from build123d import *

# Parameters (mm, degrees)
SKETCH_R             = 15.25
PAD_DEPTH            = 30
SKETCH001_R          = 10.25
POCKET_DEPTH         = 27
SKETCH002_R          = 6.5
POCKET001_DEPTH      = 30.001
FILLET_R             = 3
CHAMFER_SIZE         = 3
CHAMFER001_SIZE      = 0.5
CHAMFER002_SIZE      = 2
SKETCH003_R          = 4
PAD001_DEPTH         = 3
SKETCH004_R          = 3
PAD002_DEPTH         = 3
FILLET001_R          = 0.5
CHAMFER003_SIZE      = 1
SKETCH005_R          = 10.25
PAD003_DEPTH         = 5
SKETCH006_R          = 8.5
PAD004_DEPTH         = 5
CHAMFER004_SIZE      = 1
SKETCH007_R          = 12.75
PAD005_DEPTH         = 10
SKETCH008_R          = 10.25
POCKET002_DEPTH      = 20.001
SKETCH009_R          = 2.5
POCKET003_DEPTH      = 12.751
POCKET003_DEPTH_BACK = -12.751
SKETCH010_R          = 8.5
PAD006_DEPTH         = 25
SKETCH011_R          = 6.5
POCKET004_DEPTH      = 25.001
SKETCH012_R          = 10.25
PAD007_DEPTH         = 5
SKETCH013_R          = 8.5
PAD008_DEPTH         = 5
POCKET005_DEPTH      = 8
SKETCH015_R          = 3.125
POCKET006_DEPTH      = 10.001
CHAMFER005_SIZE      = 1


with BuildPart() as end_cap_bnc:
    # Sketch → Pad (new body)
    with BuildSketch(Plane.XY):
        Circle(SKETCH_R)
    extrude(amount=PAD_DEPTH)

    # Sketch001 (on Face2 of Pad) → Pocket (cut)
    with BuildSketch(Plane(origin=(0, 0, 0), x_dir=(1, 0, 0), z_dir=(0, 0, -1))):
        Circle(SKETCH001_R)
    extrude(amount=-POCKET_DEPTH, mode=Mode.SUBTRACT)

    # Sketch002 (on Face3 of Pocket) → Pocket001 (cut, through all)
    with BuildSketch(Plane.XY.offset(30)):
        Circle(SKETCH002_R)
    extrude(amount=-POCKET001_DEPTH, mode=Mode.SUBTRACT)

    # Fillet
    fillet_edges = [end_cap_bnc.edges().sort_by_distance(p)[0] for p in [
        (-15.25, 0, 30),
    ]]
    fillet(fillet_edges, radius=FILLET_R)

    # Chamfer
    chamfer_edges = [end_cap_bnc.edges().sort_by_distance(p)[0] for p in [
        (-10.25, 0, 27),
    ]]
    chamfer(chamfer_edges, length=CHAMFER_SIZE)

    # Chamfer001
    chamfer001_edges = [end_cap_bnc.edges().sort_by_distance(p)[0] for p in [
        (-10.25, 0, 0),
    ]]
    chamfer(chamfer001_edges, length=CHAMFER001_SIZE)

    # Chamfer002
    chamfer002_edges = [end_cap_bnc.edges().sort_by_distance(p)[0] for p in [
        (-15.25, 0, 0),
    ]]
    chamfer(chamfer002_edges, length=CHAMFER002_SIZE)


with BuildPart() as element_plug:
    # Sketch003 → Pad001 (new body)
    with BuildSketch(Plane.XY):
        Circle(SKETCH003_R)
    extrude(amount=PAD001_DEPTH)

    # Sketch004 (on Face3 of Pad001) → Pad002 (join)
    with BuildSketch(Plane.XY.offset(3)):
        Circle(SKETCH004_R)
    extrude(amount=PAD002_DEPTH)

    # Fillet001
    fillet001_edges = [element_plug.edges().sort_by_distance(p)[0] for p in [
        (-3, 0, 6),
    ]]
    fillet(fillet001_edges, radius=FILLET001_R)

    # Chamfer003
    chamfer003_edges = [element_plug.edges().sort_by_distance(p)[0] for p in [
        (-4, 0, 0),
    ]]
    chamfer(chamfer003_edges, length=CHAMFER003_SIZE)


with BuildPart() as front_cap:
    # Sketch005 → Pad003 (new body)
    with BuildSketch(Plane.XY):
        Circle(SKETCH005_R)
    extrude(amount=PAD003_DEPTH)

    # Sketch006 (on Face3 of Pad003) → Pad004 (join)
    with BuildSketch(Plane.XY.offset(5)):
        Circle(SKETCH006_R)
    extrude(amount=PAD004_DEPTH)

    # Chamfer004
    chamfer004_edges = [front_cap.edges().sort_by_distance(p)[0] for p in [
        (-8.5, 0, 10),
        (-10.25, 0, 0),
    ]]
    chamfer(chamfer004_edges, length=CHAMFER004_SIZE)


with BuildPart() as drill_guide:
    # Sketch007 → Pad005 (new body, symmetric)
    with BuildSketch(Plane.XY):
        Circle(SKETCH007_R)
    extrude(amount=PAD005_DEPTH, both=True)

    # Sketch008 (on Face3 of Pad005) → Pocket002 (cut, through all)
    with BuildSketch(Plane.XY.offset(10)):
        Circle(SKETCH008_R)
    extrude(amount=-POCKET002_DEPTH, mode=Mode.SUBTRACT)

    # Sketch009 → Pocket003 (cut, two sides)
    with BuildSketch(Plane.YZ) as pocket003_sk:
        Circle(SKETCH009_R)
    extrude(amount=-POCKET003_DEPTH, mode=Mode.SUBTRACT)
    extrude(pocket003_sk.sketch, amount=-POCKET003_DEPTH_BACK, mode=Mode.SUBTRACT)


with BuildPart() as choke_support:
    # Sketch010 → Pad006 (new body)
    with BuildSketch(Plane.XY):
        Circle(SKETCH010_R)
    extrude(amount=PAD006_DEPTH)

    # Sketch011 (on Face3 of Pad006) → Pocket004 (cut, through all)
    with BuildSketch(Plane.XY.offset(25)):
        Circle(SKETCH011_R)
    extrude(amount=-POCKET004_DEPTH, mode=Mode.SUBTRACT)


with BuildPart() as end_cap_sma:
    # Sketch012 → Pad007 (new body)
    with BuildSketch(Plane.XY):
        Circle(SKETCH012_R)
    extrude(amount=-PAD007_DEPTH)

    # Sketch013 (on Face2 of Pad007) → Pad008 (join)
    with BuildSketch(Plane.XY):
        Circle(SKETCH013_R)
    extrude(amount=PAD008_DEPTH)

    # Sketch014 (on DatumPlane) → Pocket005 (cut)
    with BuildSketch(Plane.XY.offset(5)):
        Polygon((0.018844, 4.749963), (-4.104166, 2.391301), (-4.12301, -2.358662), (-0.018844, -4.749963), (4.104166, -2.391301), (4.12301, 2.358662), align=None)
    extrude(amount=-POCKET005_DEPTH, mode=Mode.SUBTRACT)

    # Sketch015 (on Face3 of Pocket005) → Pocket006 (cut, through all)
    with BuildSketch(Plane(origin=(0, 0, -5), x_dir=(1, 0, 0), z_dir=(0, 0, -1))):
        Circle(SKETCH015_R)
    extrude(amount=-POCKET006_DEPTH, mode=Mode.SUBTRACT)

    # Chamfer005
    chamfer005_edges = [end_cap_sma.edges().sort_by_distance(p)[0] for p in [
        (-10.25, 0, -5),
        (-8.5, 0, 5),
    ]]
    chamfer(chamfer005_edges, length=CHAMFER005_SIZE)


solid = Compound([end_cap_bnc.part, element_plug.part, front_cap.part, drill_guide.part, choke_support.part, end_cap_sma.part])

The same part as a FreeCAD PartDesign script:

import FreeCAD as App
import Part
import Sketcher
from FreeCAD import Vector


def edges_at(feature, points):
    """Names of the edges that pass closest to the given points."""
    edges = feature.Shape.Edges
    near = lambda p: min(range(len(edges)), key=lambda i: edges[i].distToShape(Part.Vertex(*p))[0])
    return sorted({f"Edge{near(p) + 1}" for p in points})


def add_polygon(sketch, points):
    """Adds a closed chain of lines whose ends are joined by coincident constraints."""
    first, n = sketch.GeometryCount, len(points)
    for a, b in zip(points, points[1:] + points[:1]):
        sketch.addGeometry(Part.LineSegment(App.Vector(*a, 0), App.Vector(*b, 0)), False)
    for i in range(n):
        sketch.addConstraint(Sketcher.Constraint("Coincident", first + i, 2, first + (i + 1) % n, 1))

doc = App.newDocument("Part")
body = doc.addObject("PartDesign::Body", "Body")

# Sketch on XY plane
sketch1 = body.newObject("Sketcher::SketchObject", "Sketch")
sketch1.AttachmentSupport = (doc.getObject("XY_Plane"), [""])
sketch1.MapMode = "FlatFace"
sketch1.addGeometry(Part.Circle(Vector(0, 0, 0), Vector(0, 0, 1), 15), False)
sketch1.addConstraint(Sketcher.Constraint("Coincident", 0, 3, -1, 1))
sketch1.addConstraint(Sketcher.Constraint("Diameter", 0, 30.5))
pad1 = body.newObject("PartDesign::Pad", "Pad")
pad1.Profile = sketch1
pad1.Length = 30

# Sketch on XY plane
sketch2 = body.newObject("Sketcher::SketchObject", "Sketch001")
sketch2.AttachmentSupport = (doc.getObject("XY_Plane"), [""])
sketch2.MapMode = "FlatFace"
sketch2.addGeometry(Part.Circle(Vector(0, 0, 0), Vector(0, 0, 1), 10), False)
sketch2.addConstraint(Sketcher.Constraint("Coincident", 0, 3, -1, 1))
sketch2.addConstraint(Sketcher.Constraint("Diameter", 0, 20.5))
pocket1 = body.newObject("PartDesign::Pocket", "Pocket")
pocket1.Profile = sketch2
pocket1.Length = 27
pocket1.Reversed = True

# Sketch on XY plane
sketch3 = body.newObject("Sketcher::SketchObject", "Sketch002")
sketch3.AttachmentSupport = (doc.getObject("XY_Plane"), [""])
sketch3.MapMode = "FlatFace"
sketch3.AttachmentOffset = App.Placement(Vector(0, 0, 30), App.Rotation())
sketch3.addGeometry(Part.Circle(Vector(0, 0, 0), Vector(0, 0, 1), 6), False)
sketch3.addConstraint(Sketcher.Constraint("Coincident", 0, 3, -1, 1))
sketch3.addConstraint(Sketcher.Constraint("Diameter", 0, 13.0))
pocket2 = body.newObject("PartDesign::Pocket", "Pocket001")
pocket2.Profile = sketch3
pocket2.Type = "ThroughAll"
doc.recompute()

fillet = body.newObject("PartDesign::Fillet", "Fillet")
fillet.Base = (pocket2, edges_at(pocket2, [(-15.25, 0, 30)]))
fillet.Radius = 3
doc.recompute()

chamfer = body.newObject("PartDesign::Chamfer", "Chamfer")
chamfer.Base = (fillet, edges_at(fillet, [(-10.25, 0, 27)]))
chamfer.Size = 3
doc.recompute()

chamfer2 = body.newObject("PartDesign::Chamfer", "Chamfer001")
chamfer2.Base = (chamfer, edges_at(chamfer, [(-10.25, 0, 0)]))
chamfer2.Size = 0.5
doc.recompute()

chamfer3 = body.newObject("PartDesign::Chamfer", "Chamfer002")
chamfer3.Base = (chamfer2, edges_at(chamfer2, [(-15.25, 0, 0)]))
chamfer3.Size = 2
body2 = doc.addObject("PartDesign::Body", "Body001")

# Sketch on XY plane
sketch4 = body2.newObject("Sketcher::SketchObject", "Sketch003")
sketch4.AttachmentSupport = (doc.getObject("XY_Plane001"), [""])
sketch4.MapMode = "FlatFace"
sketch4.addGeometry(Part.Circle(Vector(0, 0, 0), Vector(0, 0, 1), 4), False)
sketch4.addConstraint(Sketcher.Constraint("Coincident", 0, 3, -1, 1))
sketch4.addConstraint(Sketcher.Constraint("Diameter", 0, 8.0))
pad2 = body2.newObject("PartDesign::Pad", "Pad001")
pad2.Profile = sketch4
pad2.Length = 3

# Sketch on XY plane
sketch5 = body2.newObject("Sketcher::SketchObject", "Sketch004")
sketch5.AttachmentSupport = (doc.getObject("XY_Plane001"), [""])
sketch5.MapMode = "FlatFace"
sketch5.AttachmentOffset = App.Placement(Vector(0, 0, 3), App.Rotation())
sketch5.addGeometry(Part.Circle(Vector(0, 0, 0), Vector(0, 0, 1), 3), False)
sketch5.addConstraint(Sketcher.Constraint("Coincident", 0, 3, -1, 1))
sketch5.addConstraint(Sketcher.Constraint("Diameter", 0, 6.0))
pad3 = body2.newObject("PartDesign::Pad", "Pad002")
pad3.Profile = sketch5
pad3.Length = 3
doc.recompute()

fillet2 = body2.newObject("PartDesign::Fillet", "Fillet001")
fillet2.Base = (pad3, edges_at(pad3, [(-3, 0, 6)]))
fillet2.Radius = 0.5
doc.recompute()

chamfer4 = body2.newObject("PartDesign::Chamfer", "Chamfer003")
chamfer4.Base = (fillet2, edges_at(fillet2, [(-4, 0, 0)]))
chamfer4.Size = 1
body3 = doc.addObject("PartDesign::Body", "Body002")

# Sketch on XY plane
sketch6 = body3.newObject("Sketcher::SketchObject", "Sketch005")
sketch6.AttachmentSupport = (doc.getObject("XY_Plane002"), [""])
sketch6.MapMode = "FlatFace"
sketch6.addGeometry(Part.Circle(Vector(0, 0, 0), Vector(0, 0, 1), 10), False)
sketch6.addConstraint(Sketcher.Constraint("Coincident", 0, 3, -1, 1))
sketch6.addConstraint(Sketcher.Constraint("Diameter", 0, 20.5))
pad4 = body3.newObject("PartDesign::Pad", "Pad003")
pad4.Profile = sketch6
pad4.Length = 5

# Sketch on XY plane
sketch7 = body3.newObject("Sketcher::SketchObject", "Sketch006")
sketch7.AttachmentSupport = (doc.getObject("XY_Plane002"), [""])
sketch7.MapMode = "FlatFace"
sketch7.AttachmentOffset = App.Placement(Vector(0, 0, 5), App.Rotation())
sketch7.addGeometry(Part.Circle(Vector(0, 0, 0), Vector(0, 0, 1), 8), False)
sketch7.addConstraint(Sketcher.Constraint("Coincident", 0, 3, -1, 1))
sketch7.addConstraint(Sketcher.Constraint("Diameter", 0, 17.0))
pad5 = body3.newObject("PartDesign::Pad", "Pad004")
pad5.Profile = sketch7
pad5.Length = 5
doc.recompute()

chamfer5 = body3.newObject("PartDesign::Chamfer", "Chamfer004")
chamfer5.Base = (pad5, edges_at(pad5, [(-8.5, 0, 10), (-10.25, 0, 0)]))
chamfer5.Size = 1
body4 = doc.addObject("PartDesign::Body", "Body003")

# Sketch on XY plane
sketch8 = body4.newObject("Sketcher::SketchObject", "Sketch007")
sketch8.AttachmentSupport = (doc.getObject("XY_Plane003"), [""])
sketch8.MapMode = "FlatFace"
sketch8.addGeometry(Part.Circle(Vector(0, 0, 0), Vector(0, 0, 1), 13), False)
sketch8.addConstraint(Sketcher.Constraint("Coincident", 0, 3, -1, 1))
sketch8.addConstraint(Sketcher.Constraint("Diameter", 0, 25.5))
pad6 = body4.newObject("PartDesign::Pad", "Pad005")
pad6.Profile = sketch8
pad6.Length = 20
pad6.Midplane = True

# Sketch on XY plane
sketch9 = body4.newObject("Sketcher::SketchObject", "Sketch008")
sketch9.AttachmentSupport = (doc.getObject("XY_Plane003"), [""])
sketch9.MapMode = "FlatFace"
sketch9.AttachmentOffset = App.Placement(Vector(0, 0, 10), App.Rotation())
sketch9.addGeometry(Part.Circle(Vector(0, 0, 0), Vector(0, 0, 1), 10), False)
sketch9.addConstraint(Sketcher.Constraint("Coincident", 0, 3, -1, 1))
sketch9.addConstraint(Sketcher.Constraint("Diameter", 0, 20.5))
pocket3 = body4.newObject("PartDesign::Pocket", "Pocket002")
pocket3.Profile = sketch9
pocket3.Type = "ThroughAll"

# Sketch on YZ plane
sketch10 = body4.newObject("Sketcher::SketchObject", "Sketch009")
sketch10.AttachmentSupport = (doc.getObject("YZ_Plane003"), [""])
sketch10.MapMode = "FlatFace"
sketch10.addGeometry(Part.Circle(Vector(0, 0, 0), Vector(0, 0, 1), 2.5), False)
sketch10.addConstraint(Sketcher.Constraint("Coincident", 0, 3, -1, 1))
sketch10.addConstraint(Sketcher.Constraint("Diameter", 0, 5.0))
pocket4 = body4.newObject("PartDesign::Pocket", "Pocket003")
pocket4.Profile = sketch10
pocket4.Type = "ThroughAll"
pocket4.Midplane = True
body5 = doc.addObject("PartDesign::Body", "Body004")

# Sketch on XY plane
sketch11 = body5.newObject("Sketcher::SketchObject", "Sketch010")
sketch11.AttachmentSupport = (doc.getObject("XY_Plane004"), [""])
sketch11.MapMode = "FlatFace"
sketch11.addGeometry(Part.Circle(Vector(0, 0, 0), Vector(0, 0, 1), 8), False)
sketch11.addConstraint(Sketcher.Constraint("Coincident", 0, 3, -1, 1))
sketch11.addConstraint(Sketcher.Constraint("Diameter", 0, 17.0))
pad7 = body5.newObject("PartDesign::Pad", "Pad006")
pad7.Profile = sketch11
pad7.Length = 25

# Sketch on XY plane
sketch12 = body5.newObject("Sketcher::SketchObject", "Sketch011")
sketch12.AttachmentSupport = (doc.getObject("XY_Plane004"), [""])
sketch12.MapMode = "FlatFace"
sketch12.AttachmentOffset = App.Placement(Vector(0, 0, 25), App.Rotation())
sketch12.addGeometry(Part.Circle(Vector(0, 0, 0), Vector(0, 0, 1), 6), False)
sketch12.addConstraint(Sketcher.Constraint("Coincident", 0, 3, -1, 1))
sketch12.addConstraint(Sketcher.Constraint("Diameter", 0, 13.0))
pocket5 = body5.newObject("PartDesign::Pocket", "Pocket004")
pocket5.Profile = sketch12
pocket5.Type = "ThroughAll"
body6 = doc.addObject("PartDesign::Body", "Body005")

# Sketch on XY plane
sketch13 = body6.newObject("Sketcher::SketchObject", "Sketch012")
sketch13.AttachmentSupport = (doc.getObject("XY_Plane005"), [""])
sketch13.MapMode = "FlatFace"
sketch13.addGeometry(Part.Circle(Vector(0, 0, 0), Vector(0, 0, 1), 10), False)
sketch13.addConstraint(Sketcher.Constraint("Coincident", 0, 3, -1, 1))
sketch13.addConstraint(Sketcher.Constraint("Diameter", 0, 20.5))
pad8 = body6.newObject("PartDesign::Pad", "Pad007")
pad8.Profile = sketch13
pad8.Length = 5
pad8.Reversed = True

# Sketch on XY plane
sketch14 = body6.newObject("Sketcher::SketchObject", "Sketch013")
sketch14.AttachmentSupport = (doc.getObject("XY_Plane005"), [""])
sketch14.MapMode = "FlatFace"
sketch14.addGeometry(Part.Circle(Vector(0, 0, 0), Vector(0, 0, 1), 8), False)
sketch14.addConstraint(Sketcher.Constraint("Coincident", 0, 3, -1, 1))
sketch14.addConstraint(Sketcher.Constraint("Diameter", 0, 17.0))
pad9 = body6.newObject("PartDesign::Pad", "Pad008")
pad9.Profile = sketch14
pad9.Length = 5

# Sketch on XY plane
sketch15 = body6.newObject("Sketcher::SketchObject", "Sketch014")
sketch15.AttachmentSupport = (doc.getObject("XY_Plane005"), [""])
sketch15.MapMode = "FlatFace"
sketch15.AttachmentOffset = App.Placement(Vector(0, 0, 5), App.Rotation())
add_polygon(sketch15, [(0, 4.7), (-4.1, 2.4), (-4.1, -2.4), (0, -4.7), (4.1, -2.4), (4.1, 2.4)])  # lines 0-5
sketch15.addConstraint(Sketcher.Constraint("Symmetric", 0, 2, 3, 2, -1, 1))
sketch15.addConstraint(Sketcher.Constraint("Symmetric", 1, 2, 4, 2, -1, 1))
sketch15.addConstraint(Sketcher.Constraint("Symmetric", 2, 2, 5, 2, -1, 1))
sketch15.addConstraint(Sketcher.Constraint("Equal", 0, 1))
sketch15.addConstraint(Sketcher.Constraint("Equal", 1, 2))
sketch15.addConstraint(Sketcher.Constraint("Distance", 0, 4.75))
sketch15.addConstraint(Sketcher.Constraint("DistanceY", -1, 1, 0, 2, 2.391301))
sketch15.addConstraint(Sketcher.Constraint("DistanceY", 2, 2, 1, 2, 2.391301))
sketch15.addConstraint(Sketcher.Constraint("DistanceX", 1, 2, -1, 1, 4.12301))
pocket6 = body6.newObject("PartDesign::Pocket", "Pocket005")
pocket6.Profile = sketch15
pocket6.Length = 8

# Sketch on XY plane
sketch16 = body6.newObject("Sketcher::SketchObject", "Sketch015")
sketch16.AttachmentSupport = (doc.getObject("XY_Plane005"), [""])
sketch16.MapMode = "FlatFace"
sketch16.AttachmentOffset = App.Placement(Vector(0, 0, -5), App.Rotation())
sketch16.addGeometry(Part.Circle(Vector(0, 0, 0), Vector(0, 0, 1), 3.1), False)
sketch16.addConstraint(Sketcher.Constraint("Coincident", 0, 3, -1, 1))
sketch16.addConstraint(Sketcher.Constraint("Diameter", 0, 6.25))
pocket7 = body6.newObject("PartDesign::Pocket", "Pocket006")
pocket7.Profile = sketch16
pocket7.Type = "ThroughAll"
pocket7.Reversed = True
doc.recompute()

chamfer6 = body6.newObject("PartDesign::Chamfer", "Chamfer005")
chamfer6.Base = (pocket7, edges_at(pocket7, [(-10.25, 0, -5), (-8.5, 0, 5)]))
chamfer6.Size = 1

doc.recompute()
